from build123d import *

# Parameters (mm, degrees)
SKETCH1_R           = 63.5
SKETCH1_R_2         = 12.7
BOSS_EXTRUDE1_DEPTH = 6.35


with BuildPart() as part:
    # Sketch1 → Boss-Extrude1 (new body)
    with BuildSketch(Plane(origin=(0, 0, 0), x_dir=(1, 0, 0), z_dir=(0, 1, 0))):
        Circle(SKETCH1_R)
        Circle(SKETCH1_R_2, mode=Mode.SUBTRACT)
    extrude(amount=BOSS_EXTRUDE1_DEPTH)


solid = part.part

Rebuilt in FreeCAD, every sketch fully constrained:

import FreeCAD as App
import Part
import Sketcher
Q = App.Units.Quantity

doc = App.newDocument("Part")
body = doc.addObject("PartDesign::Body", "Body")

# Sketch on XZ plane
sketch1 = body.newObject("Sketcher::SketchObject", "Sketch")
sketch1.AttachmentSupport = (doc.getObject("XZ_Plane"), [""])
sketch1.MapMode = "FlatFace"
sketch1.addGeometry([
    Part.Circle(App.Vector(0, 0, 0), App.Vector(0, 0, 1), 63.5),
    Part.Circle(App.Vector(0, 0, 0), App.Vector(0, 0, 1), 12.7),
], False)
sketch1.addConstraint([
    Sketcher.Constraint("Coincident", 0, 3, -1, 1),
    Sketcher.Constraint("Coincident", 1, 3, -1, 1),
    Sketcher.Constraint("Diameter", 0, Q("5 in")),
    Sketcher.Constraint("Diameter", 1, Q("1 in")),
])
pad1 = body.newObject("PartDesign::Pad", "Pad")
pad1.Profile = sketch1
pad1.Length = Q("0.25 in")
pad1.Reversed = True

doc.recompute()
